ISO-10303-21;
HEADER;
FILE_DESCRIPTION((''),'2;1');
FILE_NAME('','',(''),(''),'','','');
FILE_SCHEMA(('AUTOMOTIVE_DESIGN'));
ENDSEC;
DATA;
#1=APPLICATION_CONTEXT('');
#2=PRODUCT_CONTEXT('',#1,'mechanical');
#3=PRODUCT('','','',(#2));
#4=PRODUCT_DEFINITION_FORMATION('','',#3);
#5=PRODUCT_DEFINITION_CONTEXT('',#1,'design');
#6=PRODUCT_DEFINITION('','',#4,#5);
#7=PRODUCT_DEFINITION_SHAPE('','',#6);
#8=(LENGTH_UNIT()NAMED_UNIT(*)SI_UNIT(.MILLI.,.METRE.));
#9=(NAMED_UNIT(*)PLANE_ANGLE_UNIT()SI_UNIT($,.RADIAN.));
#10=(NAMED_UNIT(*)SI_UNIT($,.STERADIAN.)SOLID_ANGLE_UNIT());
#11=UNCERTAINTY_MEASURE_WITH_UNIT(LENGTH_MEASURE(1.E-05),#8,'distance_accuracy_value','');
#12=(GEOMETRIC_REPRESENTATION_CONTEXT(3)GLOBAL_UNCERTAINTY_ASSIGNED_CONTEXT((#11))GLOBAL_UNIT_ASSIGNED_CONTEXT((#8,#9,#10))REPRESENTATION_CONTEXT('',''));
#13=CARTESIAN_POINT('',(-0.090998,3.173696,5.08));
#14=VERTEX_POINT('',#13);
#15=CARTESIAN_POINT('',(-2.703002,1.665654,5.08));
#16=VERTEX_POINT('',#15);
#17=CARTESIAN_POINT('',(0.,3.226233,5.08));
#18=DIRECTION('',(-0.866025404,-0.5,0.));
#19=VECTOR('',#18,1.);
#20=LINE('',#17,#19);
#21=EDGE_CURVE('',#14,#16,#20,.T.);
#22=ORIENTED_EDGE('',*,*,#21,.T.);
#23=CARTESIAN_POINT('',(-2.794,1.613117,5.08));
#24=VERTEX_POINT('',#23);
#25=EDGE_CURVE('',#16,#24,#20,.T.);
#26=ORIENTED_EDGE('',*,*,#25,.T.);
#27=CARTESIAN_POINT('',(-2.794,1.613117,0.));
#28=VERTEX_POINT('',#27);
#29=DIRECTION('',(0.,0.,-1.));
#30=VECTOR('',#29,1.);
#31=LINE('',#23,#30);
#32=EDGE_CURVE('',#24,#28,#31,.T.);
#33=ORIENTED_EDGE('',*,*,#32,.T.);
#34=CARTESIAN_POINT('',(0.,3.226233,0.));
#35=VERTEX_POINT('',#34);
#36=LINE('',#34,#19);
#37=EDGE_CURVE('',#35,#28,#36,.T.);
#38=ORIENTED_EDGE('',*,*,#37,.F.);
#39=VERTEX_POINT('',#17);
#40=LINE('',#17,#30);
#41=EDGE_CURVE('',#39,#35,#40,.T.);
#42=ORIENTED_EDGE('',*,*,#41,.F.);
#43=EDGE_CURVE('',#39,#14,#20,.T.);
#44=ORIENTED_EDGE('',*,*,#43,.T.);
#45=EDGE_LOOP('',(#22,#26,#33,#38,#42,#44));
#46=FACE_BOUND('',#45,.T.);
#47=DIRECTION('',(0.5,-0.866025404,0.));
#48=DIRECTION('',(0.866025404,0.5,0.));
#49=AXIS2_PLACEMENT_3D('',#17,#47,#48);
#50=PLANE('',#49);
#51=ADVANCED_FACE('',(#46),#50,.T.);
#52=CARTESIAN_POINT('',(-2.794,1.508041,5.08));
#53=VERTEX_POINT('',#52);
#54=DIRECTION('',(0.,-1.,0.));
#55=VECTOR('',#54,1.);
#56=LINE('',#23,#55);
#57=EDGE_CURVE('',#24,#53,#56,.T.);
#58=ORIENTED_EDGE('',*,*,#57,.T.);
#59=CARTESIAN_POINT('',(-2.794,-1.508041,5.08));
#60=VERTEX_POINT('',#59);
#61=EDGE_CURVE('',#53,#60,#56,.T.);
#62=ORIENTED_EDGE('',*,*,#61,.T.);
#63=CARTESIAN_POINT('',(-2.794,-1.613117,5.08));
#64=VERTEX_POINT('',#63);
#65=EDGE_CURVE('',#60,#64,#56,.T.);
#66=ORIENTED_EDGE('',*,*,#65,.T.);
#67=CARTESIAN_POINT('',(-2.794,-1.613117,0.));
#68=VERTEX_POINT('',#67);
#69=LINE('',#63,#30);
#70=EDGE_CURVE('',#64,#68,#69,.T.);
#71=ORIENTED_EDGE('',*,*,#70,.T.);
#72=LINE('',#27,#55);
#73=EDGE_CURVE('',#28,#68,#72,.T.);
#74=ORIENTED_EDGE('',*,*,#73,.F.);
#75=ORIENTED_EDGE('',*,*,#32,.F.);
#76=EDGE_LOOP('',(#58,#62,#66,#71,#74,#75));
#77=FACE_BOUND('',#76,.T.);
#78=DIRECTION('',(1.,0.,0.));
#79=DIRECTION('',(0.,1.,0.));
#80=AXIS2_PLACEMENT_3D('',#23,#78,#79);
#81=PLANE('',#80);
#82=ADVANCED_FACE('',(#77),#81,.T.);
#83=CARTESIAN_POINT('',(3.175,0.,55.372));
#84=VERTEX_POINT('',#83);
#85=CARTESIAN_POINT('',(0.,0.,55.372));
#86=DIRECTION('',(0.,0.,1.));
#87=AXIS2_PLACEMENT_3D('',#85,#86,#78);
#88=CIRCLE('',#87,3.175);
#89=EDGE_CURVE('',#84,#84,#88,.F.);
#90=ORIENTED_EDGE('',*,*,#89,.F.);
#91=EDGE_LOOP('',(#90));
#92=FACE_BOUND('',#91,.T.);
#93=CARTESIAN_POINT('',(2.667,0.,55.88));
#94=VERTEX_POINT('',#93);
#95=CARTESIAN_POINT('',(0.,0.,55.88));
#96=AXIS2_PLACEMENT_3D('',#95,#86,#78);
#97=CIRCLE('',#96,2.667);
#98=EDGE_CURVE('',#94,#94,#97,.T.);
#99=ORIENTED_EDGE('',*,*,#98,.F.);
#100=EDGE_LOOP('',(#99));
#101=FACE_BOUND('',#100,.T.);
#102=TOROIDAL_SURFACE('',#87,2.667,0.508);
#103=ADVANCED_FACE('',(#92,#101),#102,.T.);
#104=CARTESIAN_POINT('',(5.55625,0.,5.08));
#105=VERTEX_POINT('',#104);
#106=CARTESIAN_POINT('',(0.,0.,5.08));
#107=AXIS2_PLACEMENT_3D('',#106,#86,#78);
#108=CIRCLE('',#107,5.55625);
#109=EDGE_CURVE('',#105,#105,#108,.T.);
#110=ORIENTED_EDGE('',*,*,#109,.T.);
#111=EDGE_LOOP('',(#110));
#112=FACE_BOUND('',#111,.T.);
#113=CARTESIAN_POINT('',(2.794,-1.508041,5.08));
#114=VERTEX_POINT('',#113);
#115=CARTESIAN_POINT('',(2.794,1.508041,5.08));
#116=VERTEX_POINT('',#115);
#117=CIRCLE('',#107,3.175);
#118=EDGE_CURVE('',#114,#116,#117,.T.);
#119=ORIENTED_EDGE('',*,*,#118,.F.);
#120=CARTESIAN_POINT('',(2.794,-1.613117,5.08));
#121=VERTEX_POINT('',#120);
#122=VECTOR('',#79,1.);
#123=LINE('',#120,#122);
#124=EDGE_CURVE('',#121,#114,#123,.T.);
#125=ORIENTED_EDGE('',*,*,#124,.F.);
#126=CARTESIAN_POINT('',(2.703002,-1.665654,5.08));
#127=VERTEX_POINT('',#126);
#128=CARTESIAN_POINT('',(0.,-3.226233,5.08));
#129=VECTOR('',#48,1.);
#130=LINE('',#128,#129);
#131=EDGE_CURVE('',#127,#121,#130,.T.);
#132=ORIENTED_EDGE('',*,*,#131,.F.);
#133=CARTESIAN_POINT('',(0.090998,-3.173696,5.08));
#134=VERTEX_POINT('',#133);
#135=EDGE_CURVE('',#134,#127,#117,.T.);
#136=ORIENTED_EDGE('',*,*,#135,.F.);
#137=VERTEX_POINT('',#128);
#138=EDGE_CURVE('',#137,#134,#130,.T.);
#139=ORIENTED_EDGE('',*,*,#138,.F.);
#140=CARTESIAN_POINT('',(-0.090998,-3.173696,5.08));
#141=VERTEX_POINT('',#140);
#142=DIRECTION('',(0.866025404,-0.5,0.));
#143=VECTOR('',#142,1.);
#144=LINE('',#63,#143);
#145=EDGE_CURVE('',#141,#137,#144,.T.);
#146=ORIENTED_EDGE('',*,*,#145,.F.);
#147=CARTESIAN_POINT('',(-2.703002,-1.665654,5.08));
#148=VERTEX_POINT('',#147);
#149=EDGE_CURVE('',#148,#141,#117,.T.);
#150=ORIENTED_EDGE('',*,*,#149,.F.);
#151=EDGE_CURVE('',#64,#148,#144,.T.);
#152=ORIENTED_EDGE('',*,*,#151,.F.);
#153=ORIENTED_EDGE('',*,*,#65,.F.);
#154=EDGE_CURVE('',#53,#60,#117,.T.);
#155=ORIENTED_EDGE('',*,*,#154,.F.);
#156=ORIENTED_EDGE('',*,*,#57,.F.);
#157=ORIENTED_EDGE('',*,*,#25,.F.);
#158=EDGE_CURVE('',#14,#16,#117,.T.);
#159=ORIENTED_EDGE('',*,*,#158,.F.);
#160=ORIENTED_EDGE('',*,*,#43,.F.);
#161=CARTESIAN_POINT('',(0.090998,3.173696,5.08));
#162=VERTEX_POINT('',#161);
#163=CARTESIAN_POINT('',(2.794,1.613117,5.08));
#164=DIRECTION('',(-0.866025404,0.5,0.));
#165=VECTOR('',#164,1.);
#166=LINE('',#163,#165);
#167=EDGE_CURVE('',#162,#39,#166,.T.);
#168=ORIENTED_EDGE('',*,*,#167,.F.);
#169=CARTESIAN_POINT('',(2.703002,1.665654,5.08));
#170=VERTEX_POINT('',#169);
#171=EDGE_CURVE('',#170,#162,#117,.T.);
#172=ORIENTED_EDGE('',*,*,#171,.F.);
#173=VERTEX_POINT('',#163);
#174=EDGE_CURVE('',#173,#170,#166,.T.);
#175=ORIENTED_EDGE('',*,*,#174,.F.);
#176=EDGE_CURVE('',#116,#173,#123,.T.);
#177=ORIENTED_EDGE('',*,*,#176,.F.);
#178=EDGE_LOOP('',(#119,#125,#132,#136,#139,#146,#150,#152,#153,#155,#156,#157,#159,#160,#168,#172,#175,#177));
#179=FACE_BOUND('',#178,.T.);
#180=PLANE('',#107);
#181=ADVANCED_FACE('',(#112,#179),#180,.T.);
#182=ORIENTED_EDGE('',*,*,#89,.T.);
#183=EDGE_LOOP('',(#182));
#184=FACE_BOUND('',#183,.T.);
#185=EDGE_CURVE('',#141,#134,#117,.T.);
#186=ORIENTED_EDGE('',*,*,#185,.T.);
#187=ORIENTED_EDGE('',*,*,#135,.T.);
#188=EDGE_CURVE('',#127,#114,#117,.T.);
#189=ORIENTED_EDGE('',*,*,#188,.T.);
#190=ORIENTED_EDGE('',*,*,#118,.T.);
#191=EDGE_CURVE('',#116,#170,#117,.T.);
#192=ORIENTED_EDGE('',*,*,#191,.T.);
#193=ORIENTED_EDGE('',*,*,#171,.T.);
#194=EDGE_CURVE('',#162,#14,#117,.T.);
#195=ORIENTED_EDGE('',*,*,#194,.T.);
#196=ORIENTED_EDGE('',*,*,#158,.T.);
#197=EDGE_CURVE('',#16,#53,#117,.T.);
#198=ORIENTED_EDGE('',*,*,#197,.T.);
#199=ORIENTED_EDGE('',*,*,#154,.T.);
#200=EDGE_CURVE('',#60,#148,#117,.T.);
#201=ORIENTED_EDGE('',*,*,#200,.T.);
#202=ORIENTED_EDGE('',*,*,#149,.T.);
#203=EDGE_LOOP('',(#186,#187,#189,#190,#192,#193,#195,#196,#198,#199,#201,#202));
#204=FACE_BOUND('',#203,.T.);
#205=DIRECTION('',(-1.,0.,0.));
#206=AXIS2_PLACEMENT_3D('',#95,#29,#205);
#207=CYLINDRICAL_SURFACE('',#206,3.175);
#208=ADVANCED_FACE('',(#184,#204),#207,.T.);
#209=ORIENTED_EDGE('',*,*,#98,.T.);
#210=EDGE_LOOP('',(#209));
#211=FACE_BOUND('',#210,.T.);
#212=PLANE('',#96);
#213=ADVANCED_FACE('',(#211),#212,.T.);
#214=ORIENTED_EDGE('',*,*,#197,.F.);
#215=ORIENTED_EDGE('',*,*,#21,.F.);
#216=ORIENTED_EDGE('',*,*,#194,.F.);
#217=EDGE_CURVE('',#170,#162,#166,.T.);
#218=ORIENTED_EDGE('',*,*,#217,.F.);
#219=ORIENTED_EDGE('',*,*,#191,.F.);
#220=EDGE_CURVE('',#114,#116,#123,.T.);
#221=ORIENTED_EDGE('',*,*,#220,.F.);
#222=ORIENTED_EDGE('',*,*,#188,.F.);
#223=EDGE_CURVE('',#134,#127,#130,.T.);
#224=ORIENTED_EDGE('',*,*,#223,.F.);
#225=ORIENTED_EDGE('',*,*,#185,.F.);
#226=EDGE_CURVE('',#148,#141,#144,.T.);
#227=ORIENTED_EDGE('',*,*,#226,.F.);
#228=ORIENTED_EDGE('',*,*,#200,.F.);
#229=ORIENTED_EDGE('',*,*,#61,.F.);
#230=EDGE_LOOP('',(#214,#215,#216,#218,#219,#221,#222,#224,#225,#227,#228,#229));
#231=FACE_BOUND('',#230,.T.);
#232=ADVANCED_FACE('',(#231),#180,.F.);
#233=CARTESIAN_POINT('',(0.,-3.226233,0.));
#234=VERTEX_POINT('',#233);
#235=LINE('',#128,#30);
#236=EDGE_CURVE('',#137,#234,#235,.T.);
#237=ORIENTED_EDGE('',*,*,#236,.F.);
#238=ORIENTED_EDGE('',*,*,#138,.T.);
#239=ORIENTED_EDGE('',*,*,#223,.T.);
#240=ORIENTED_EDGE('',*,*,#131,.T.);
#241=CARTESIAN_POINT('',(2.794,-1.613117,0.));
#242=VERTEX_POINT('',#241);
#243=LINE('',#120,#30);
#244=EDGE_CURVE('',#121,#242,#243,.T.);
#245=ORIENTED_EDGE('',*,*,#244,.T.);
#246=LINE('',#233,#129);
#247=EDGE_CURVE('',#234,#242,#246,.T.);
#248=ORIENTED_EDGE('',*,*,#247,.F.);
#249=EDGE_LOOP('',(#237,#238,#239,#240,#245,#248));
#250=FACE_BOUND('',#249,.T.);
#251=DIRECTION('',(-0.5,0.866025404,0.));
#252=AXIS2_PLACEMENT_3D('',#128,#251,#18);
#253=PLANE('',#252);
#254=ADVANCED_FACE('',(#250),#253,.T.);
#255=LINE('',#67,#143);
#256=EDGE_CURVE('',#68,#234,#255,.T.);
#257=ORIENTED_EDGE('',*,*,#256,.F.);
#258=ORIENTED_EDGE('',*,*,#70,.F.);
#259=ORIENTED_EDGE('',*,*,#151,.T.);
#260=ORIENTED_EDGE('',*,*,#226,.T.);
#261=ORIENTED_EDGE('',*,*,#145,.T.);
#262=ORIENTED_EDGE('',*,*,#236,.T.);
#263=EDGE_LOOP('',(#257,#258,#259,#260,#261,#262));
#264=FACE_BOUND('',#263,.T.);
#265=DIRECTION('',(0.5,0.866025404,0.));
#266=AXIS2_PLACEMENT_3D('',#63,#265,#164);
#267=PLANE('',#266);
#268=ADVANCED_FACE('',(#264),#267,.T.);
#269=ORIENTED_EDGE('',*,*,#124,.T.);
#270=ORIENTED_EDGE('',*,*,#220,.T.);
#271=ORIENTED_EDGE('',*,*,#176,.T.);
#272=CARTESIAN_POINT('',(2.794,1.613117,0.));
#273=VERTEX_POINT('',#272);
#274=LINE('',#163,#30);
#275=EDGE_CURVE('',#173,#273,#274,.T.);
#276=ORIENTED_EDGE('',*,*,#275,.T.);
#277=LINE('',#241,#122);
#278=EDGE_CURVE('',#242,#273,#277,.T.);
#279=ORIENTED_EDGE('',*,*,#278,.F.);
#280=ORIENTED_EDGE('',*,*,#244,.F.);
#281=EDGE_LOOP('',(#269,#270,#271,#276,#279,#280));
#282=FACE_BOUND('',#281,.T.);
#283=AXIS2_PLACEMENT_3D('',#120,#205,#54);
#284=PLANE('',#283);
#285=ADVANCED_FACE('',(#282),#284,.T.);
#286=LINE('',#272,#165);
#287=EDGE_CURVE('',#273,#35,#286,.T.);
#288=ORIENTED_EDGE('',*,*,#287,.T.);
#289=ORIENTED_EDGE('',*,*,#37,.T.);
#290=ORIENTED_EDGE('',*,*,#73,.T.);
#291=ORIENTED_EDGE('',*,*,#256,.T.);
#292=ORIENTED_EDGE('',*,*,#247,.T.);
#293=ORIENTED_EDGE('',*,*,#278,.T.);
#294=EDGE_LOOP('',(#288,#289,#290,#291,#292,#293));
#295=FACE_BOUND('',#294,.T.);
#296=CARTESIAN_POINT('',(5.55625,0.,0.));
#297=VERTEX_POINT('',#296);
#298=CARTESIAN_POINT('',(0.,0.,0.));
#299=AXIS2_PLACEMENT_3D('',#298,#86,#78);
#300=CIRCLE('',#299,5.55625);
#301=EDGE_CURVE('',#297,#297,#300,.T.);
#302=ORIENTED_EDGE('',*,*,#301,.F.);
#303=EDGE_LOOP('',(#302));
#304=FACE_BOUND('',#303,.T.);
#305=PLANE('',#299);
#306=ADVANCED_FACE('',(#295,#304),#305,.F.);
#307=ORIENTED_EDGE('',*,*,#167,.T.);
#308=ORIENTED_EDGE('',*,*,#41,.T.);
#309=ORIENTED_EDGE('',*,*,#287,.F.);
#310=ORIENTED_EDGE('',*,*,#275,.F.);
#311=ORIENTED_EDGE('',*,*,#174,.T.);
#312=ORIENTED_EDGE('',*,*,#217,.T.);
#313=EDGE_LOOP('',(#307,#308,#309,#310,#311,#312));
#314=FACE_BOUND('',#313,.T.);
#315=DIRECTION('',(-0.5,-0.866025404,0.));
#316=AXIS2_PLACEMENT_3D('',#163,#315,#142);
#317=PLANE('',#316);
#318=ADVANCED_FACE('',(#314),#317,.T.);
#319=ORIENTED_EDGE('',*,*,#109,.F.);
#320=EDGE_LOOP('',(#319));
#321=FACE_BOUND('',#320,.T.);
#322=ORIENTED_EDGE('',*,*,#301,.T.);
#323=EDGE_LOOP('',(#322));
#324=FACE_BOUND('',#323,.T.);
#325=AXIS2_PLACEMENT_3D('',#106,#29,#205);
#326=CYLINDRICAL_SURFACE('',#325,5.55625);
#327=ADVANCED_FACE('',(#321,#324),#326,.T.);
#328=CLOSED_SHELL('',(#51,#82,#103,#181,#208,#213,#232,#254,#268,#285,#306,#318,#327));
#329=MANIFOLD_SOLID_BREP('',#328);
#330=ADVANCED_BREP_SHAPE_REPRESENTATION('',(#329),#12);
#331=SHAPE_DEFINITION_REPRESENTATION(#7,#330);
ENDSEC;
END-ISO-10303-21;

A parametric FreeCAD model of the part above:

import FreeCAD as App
import Part
import Sketcher
Q = App.Units.Quantity


def edges_at(feature, points):
    """Names of the edges that pass closest to the given points."""
    edges = feature.Shape.Edges
    near = lambda p: min(range(len(edges)), key=lambda i: edges[i].distToShape(Part.Vertex(*p))[0])
    return sorted({f"Edge{near(p) + 1}" for p in points})


def add_polygon(sketch, points):
    """Adds a closed chain of lines whose ends are joined by coincident constraints."""
    first, n = sketch.GeometryCount, len(points)
    for a, b in zip(points, points[1:] + points[:1]):
        sketch.addGeometry(Part.LineSegment(App.Vector(*a, 0), App.Vector(*b, 0)), False)
    for i in range(n):
        sketch.addConstraint(Sketcher.Constraint("Coincident", first + i, 2, first + (i + 1) % n, 1))

doc = App.newDocument("Part")
body = doc.addObject("PartDesign::Body", "Body")

# Sketch on XY plane
sketch1 = body.newObject("Sketcher::SketchObject", "Sketch")
sketch1.AttachmentSupport = (doc.getObject("XY_Plane"), [""])
sketch1.MapMode = "FlatFace"
sketch1.addGeometry(Part.Circle(App.Vector(0, 0, 0), App.Vector(0, 0, 1), 5.55625), False)  # 0
add_polygon(sketch1, [(0, 3.226233), (2.794, 1.613117), (2.794, -1.613117), (0, -3.226233), (-2.794, -1.613117), (-2.794, 1.613117)])  # lines 1-6
sketch1.addConstraint(Sketcher.Constraint("Vertical", 2))
sketch1.addConstraint(Sketcher.Constraint("Vertical", 5))
sketch1.addConstraint(Sketcher.Constraint("Coincident", 0, 3, -1, 1))
sketch1.addConstraint(Sketcher.Constraint("Symmetric", 1, 2, 4, 2, -1, 1))
sketch1.addConstraint(Sketcher.Constraint("Symmetric", 3, 2, 6, 2, -1, 1))
sketch1.addConstraint(Sketcher.Constraint("PointOnObject", 3, 2, -2))
sketch1.addConstraint(Sketcher.Constraint("Parallel", 3, 6))
sketch1.addConstraint(Sketcher.Constraint("Horizontal", 2, 2, 4, 2))
sketch1.addConstraint(Sketcher.Constraint("Diameter", 0, Q("0.4375 in")))
sketch1.addConstraint(Sketcher.Constraint("Angle", 1, Q("-30 deg")))
sketch1.addConstraint(Sketcher.Constraint("DistanceX", -1, 1, 1, 2, Q("0.11 in")))
sketch1.addConstraint(Sketcher.Constraint("DistanceY", 2, 2, 2, 1, Q("3.226233 mm")))
pad1 = body.newObject("PartDesign::Pad", "Pad")
pad1.Profile = sketch1
pad1.Length = Q("0.2 in")

# Sketch on XY plane
sketch2 = body.newObject("Sketcher::SketchObject", "Sketch001")
sketch2.AttachmentSupport = (doc.getObject("XY_Plane"), [""])
sketch2.MapMode = "FlatFace"
sketch2.AttachmentOffset = App.Placement(App.Vector(0, 0, 0.2 * 25.4), App.Rotation())
sketch2.addGeometry(Part.Circle(App.Vector(0, 0, 0), App.Vector(0, 0, 1), 3.175), False)
sketch2.addConstraint(Sketcher.Constraint("Coincident", 0, 3, -1, 1))
sketch2.addConstraint(Sketcher.Constraint("Diameter", 0, Q("0.25 in")))
pad2 = body.newObject("PartDesign::Pad", "Pad001")
pad2.Profile = sketch2
pad2.Length = Q("2 in")
doc.recompute()

fillet = body.newObject("PartDesign::Fillet", "Fillet")
fillet.Base = (pad2, edges_at(pad2, [(-3.175, 0, 55.88)]))
fillet.Radius = Q("0.02 in")

doc.recompute()
